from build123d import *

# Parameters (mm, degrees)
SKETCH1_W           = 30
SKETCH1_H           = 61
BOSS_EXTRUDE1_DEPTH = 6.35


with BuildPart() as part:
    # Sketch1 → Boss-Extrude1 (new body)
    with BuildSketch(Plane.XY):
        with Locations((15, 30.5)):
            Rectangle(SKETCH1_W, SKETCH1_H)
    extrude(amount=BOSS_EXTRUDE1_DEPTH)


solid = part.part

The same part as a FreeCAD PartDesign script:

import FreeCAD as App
import Part
import Sketcher
from FreeCAD import Vector


def add_polygon(sketch, points):
    """Adds a closed chain of lines whose ends are joined by coincident constraints."""
    first, n = sketch.GeometryCount, len(points)
    for a, b in zip(points, points[1:] + points[:1]):
        sketch.addGeometry(Part.LineSegment(App.Vector(*a, 0), App.Vector(*b, 0)), False)
    for i in range(n):
        sketch.addConstraint(Sketcher.Constraint("Coincident", first + i, 2, first + (i + 1) % n, 1))

doc = App.newDocument("Part")
body = doc.addObject("PartDesign::Body", "Body")

# Sketch on XY plane
sketch1 = body.newObject("Sketcher::SketchObject", "Sketch")
sketch1.AttachmentSupport = (doc.getObject("XY_Plane"), [""])
sketch1.MapMode = "FlatFace"
add_polygon(sketch1, [(0, 61), (0, 0), (30, 0), (30, 61)])  # lines 0-3
sketch1.addConstraint([
    Sketcher.Constraint("Vertical", 0),
    Sketcher.Constraint("Horizontal", 1),
    Sketcher.Constraint("Vertical", 2),
    Sketcher.Constraint("Horizontal", 3),
    Sketcher.Constraint("Coincident", 0, 2, -1, 1),
    Sketcher.Constraint("DistanceX", 1, 1, 1, 2, 30.0),
    Sketcher.Constraint("DistanceY", 0, 2, 0, 1, 61.0),
])
pad1 = body.newObject("PartDesign::Pad", "Pad")
pad1.Profile = sketch1
pad1.Length = 6.35

doc.recompute()
